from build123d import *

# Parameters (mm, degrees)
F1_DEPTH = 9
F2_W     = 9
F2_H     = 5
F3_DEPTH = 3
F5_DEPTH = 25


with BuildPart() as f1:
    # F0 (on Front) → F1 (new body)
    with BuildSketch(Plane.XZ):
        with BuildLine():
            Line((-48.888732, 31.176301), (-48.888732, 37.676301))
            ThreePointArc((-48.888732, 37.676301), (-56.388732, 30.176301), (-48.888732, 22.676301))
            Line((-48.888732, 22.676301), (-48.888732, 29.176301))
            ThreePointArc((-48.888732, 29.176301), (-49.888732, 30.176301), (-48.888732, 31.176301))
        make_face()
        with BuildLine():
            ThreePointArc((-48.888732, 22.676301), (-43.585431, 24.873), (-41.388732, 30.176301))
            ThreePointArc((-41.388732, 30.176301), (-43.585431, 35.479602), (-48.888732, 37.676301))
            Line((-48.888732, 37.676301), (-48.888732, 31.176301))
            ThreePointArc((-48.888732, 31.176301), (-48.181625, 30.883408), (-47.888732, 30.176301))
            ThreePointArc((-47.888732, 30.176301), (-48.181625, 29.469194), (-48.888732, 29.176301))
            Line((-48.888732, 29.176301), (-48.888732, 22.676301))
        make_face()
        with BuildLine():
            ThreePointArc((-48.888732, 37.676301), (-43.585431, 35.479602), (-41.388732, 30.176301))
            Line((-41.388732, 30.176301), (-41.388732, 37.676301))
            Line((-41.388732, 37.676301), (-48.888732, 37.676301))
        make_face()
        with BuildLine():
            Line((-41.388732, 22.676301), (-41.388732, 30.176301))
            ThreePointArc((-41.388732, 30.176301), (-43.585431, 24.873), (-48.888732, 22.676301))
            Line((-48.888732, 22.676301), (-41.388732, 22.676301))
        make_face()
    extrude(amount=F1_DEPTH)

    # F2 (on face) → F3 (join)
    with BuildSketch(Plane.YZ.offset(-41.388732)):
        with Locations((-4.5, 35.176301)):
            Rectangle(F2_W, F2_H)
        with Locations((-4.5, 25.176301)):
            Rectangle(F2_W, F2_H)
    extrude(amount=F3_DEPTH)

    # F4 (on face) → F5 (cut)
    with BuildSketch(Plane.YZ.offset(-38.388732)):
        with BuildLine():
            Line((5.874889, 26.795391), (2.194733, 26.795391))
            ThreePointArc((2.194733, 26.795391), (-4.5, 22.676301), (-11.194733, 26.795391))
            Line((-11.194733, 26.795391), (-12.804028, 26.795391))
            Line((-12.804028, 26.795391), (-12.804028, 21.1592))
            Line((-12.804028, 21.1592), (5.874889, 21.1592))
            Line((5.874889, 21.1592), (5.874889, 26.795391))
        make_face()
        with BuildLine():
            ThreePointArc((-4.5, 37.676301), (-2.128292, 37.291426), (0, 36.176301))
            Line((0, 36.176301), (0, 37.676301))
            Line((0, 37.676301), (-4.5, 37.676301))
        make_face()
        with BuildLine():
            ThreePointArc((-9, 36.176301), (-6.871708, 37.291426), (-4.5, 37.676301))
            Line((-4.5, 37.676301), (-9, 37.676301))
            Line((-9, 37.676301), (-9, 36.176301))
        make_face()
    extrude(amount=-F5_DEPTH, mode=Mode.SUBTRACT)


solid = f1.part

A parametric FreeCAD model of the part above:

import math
import FreeCAD as App
import Part
import Sketcher

V = App.Vector
Q = App.Units.Quantity

doc = App.newDocument("Part")
body = doc.addObject("PartDesign::Body", "Body")

sketch1 = body.newObject("Sketcher::SketchObject", "Sketch")
sketch1.AttachmentSupport = (doc.getObject("XZ_Plane"), [""])
sketch1.MapMode = "FlatFace"
sketch1.addGeometry([
    Part.ArcOfCircle(Part.Circle(V(-48.9, 30.2, 0), V(0, 0, 1), 7.5), math.radians(90), math.radians(270)),
    Part.LineSegment(V(-48.9, 22.7, 0), V(-41.4, 22.7, 0)),
    Part.LineSegment(V(-41.4, 22.7, 0), V(-41.4, 37.7, 0)),
    Part.LineSegment(V(-41.4, 37.7, 0), V(-48.9, 37.7, 0)),
    Part.ArcOfCircle(Part.Circle(V(-48.9, 30.2, 0), V(0, 0, 1), 1), math.radians(90), math.radians(270)),
    Part.ArcOfCircle(Part.Circle(V(-48.9, 30.2, 0), V(0, 0, 1), 1), math.radians(0), math.radians(90)),
    Part.ArcOfCircle(Part.Circle(V(-48.9, 30.2, 0), V(0, 0, 1), 1), math.radians(-90), math.radians(0)),
], False)
sketch1.addConstraint([
    Sketcher.Constraint("Tangent", 0, 2, 1, 1),
    Sketcher.Constraint("Coincident", 1, 2, 2, 1),
    Sketcher.Constraint("Coincident", 2, 2, 3, 1),
    Sketcher.Constraint("Tangent", 3, 2, 0, 1),
    Sketcher.Constraint("Tangent", 4, 1, 5, 2),
    Sketcher.Constraint("Tangent", 5, 1, 6, 2),
    Sketcher.Constraint("Tangent", 6, 1, 4, 2),
    Sketcher.Constraint("Horizontal", 1),
    Sketcher.Constraint("Vertical", 2),
    Sketcher.Constraint("Horizontal", 3),
    Sketcher.Constraint("Coincident", 4, 3, 0, 3),
    Sketcher.Constraint("Horizontal", 6, 3, 5, 1),
    Sketcher.Constraint("Vertical", 3, 2, 4, 1),
    Sketcher.Constraint("Vertical", 4, 1, 6, 1),
    Sketcher.Constraint("Radius", 4, Q("1 mm")),
    Sketcher.Constraint("Radius", 0, Q("7.5 mm")),
    Sketcher.Constraint("DistanceX", 1, 1, 1, 2, Q("7.5 mm")),
    Sketcher.Constraint("DistanceY", -1, 1, 0, 3, Q("30.176301 mm")),
    Sketcher.Constraint("DistanceX", 0, 3, -1, 1, Q("48.888732 mm")),
])
pad1 = body.newObject("PartDesign::Pad", "Pad")
pad1.Profile = sketch1
pad1.Length = 9

sketch2 = body.newObject("Sketcher::SketchObject", "Sketch001")
sketch2.AttachmentSupport = (doc.getObject("YZ_Plane"), [""])
sketch2.MapMode = "FlatFace"
sketch2.AttachmentOffset = App.Placement(V(0, 0, -41.388732), App.Rotation())
sketch2.addGeometry([
    Part.LineSegment(V(-9, 38, 0), V(-9, 33, 0)),
    Part.LineSegment(V(-9, 33, 0), V(0, 33, 0)),
    Part.LineSegment(V(0, 33, 0), V(0, 38, 0)),
    Part.LineSegment(V(0, 38, 0), V(-9, 38, 0)),
    Part.LineSegment(V(-9, 28, 0), V(-9, 23, 0)),
    Part.LineSegment(V(-9, 23, 0), V(0, 23, 0)),
    Part.LineSegment(V(0, 23, 0), V(0, 28, 0)),
    Part.LineSegment(V(0, 28, 0), V(-9, 28, 0)),
], False)
sketch2.addConstraint([
    Sketcher.Constraint("Coincident", 0, 2, 1, 1),
    Sketcher.Constraint("Coincident", 1, 2, 2, 1),
    Sketcher.Constraint("Coincident", 2, 2, 3, 1),
    Sketcher.Constraint("Coincident", 3, 2, 0, 1),
    Sketcher.Constraint("Coincident", 4, 2, 5, 1),
    Sketcher.Constraint("Coincident", 5, 2, 6, 1),
    Sketcher.Constraint("Coincident", 6, 2, 7, 1),
    Sketcher.Constraint("Coincident", 7, 2, 4, 1),
    Sketcher.Constraint("Vertical", 0),
    Sketcher.Constraint("Horizontal", 1),
    Sketcher.Constraint("Vertical", 2),
    Sketcher.Constraint("Horizontal", 3),
    Sketcher.Constraint("Vertical", 4),
    Sketcher.Constraint("Horizontal", 5),
    Sketcher.Constraint("Vertical", 6),
    Sketcher.Constraint("Horizontal", 7),
    Sketcher.Constraint("PointOnObject", 1, 2, -2),
    Sketcher.Constraint("PointOnObject", 5, 2, -2),
    Sketcher.Constraint("Vertical", 3, 2, 4, 2),
    Sketcher.Constraint("Equal", 2, 4),
    Sketcher.Constraint("DistanceX", 1, 1, 1, 2, Q("9 mm")),
    Sketcher.Constraint("DistanceY", 0, 2, 0, 1, Q("5 mm")),
    Sketcher.Constraint("DistanceY", 4, 2, 0, 2, Q("10 mm")),
    Sketcher.Constraint("DistanceY", -1, 1, 0, 2, Q("32.676301 mm")),
])
pad2 = body.newObject("PartDesign::Pad", "Pad001")
pad2.Profile = sketch2
pad2.Length = 3

sketch3 = body.newObject("Sketcher::SketchObject", "Sketch002")
sketch3.AttachmentSupport = (doc.getObject("YZ_Plane"), [""])
sketch3.MapMode = "FlatFace"
sketch3.AttachmentOffset = App.Placement(V(0, 0, -38.388732), App.Rotation())
sketch3.addGeometry([
    Part.LineSegment(V(5.9, 26.8, 0), V(2.2, 26.8, 0)),
    Part.ArcOfCircle(Part.Circle(V(-4.5, 30.2, 0), V(0, 0, 1), 7.5), math.radians(-153), math.radians(-27)),
    Part.LineSegment(V(-11.2, 26.8, 0), V(-12.8, 26.8, 0)),
    Part.LineSegment(V(-12.8, 26.8, 0), V(-12.8, 21.2, 0)),
    Part.LineSegment(V(-12.8, 21.2, 0), V(5.9, 21.2, 0)),
    Part.LineSegment(V(5.9, 21.2, 0), V(5.9, 26.8, 0)),
    Part.ArcOfCircle(Part.Circle(V(-4.5, 30.2, 0), V(0, 0, 1), 7.5), math.radians(53), math.radians(90)),
    Part.LineSegment(V(0, 36.2, 0), V(0, 37.7, 0)),
    Part.LineSegment(V(0, 37.7, 0), V(-4.5, 37.7, 0)),
    Part.ArcOfCircle(Part.Circle(V(-4.5, 30.2, 0), V(0, 0, 1), 7.5), math.radians(90), math.radians(127)),
    Part.LineSegment(V(-4.5, 37.7, 0), V(-9, 37.7, 0)),
    Part.LineSegment(V(-9, 37.7, 0), V(-9, 36.2, 0)),
], False)
sketch3.addConstraint([
    Sketcher.Constraint("Coincident", 0, 2, 1, 2),
    Sketcher.Constraint("Coincident", 1, 1, 2, 1),
    Sketcher.Constraint("Coincident", 2, 2, 3, 1),
    Sketcher.Constraint("Coincident", 3, 2, 4, 1),
    Sketcher.Constraint("Coincident", 4, 2, 5, 1),
    Sketcher.Constraint("Coincident", 5, 2, 0, 1),
    Sketcher.Constraint("Coincident", 6, 1, 7, 1),
    Sketcher.Constraint("Coincident", 7, 2, 8, 1),
    Sketcher.Constraint("Tangent", 8, 2, 6, 2),
    Sketcher.Constraint("Tangent", 9, 1, 10, 1),
    Sketcher.Constraint("Coincident", 10, 2, 11, 1),
    Sketcher.Constraint("Coincident", 11, 2, 9, 2),
    Sketcher.Constraint("Horizontal", 0),
    Sketcher.Constraint("Horizontal", 2),
    Sketcher.Constraint("Vertical", 3),
    Sketcher.Constraint("Horizontal", 4),
    Sketcher.Constraint("Vertical", 5),
    Sketcher.Constraint("Vertical", 7),
    Sketcher.Constraint("Horizontal", 8),
    Sketcher.Constraint("Horizontal", 10),
    Sketcher.Constraint("Vertical", 11),
    Sketcher.Constraint("Coincident", 6, 3, 1, 3),
    Sketcher.Constraint("Coincident", 9, 3, 1, 3),
    Sketcher.Constraint("Equal", 6, 9),
    Sketcher.Constraint("PointOnObject", 6, 1, -2),
    Sketcher.Constraint("Horizontal", 0, 2, 1, 1),
    Sketcher.Constraint("Horizontal", 6, 1, 11, 2),
    Sketcher.Constraint("Radius", 1, Q("7.5 mm")),
    Sketcher.Constraint("DistanceX", 8, 2, 8, 1, Q("4.5 mm")),
    Sketcher.Constraint("DistanceY", 7, 1, 7, 2, Q("1.5 mm")),
    Sketcher.Constraint("DistanceY", 3, 2, 3, 1, Q("5.636191 mm")),
    Sketcher.Constraint("DistanceY", -1, 1, 1, 3, Q("30.176301 mm")),
    Sketcher.Constraint("DistanceY", -1, 1, 3, 2, Q("21.1592 mm")),
    Sketcher.Constraint("DistanceX", 0, 2, 0, 1, Q("3.680156 mm")),
    Sketcher.Constraint("DistanceX", 2, 2, 2, 1, Q("1.609295 mm")),
])
pocket1 = body.newObject("PartDesign::Pocket", "Pocket")
pocket1.Profile = sketch3
pocket1.Length = 25

doc.recompute()
